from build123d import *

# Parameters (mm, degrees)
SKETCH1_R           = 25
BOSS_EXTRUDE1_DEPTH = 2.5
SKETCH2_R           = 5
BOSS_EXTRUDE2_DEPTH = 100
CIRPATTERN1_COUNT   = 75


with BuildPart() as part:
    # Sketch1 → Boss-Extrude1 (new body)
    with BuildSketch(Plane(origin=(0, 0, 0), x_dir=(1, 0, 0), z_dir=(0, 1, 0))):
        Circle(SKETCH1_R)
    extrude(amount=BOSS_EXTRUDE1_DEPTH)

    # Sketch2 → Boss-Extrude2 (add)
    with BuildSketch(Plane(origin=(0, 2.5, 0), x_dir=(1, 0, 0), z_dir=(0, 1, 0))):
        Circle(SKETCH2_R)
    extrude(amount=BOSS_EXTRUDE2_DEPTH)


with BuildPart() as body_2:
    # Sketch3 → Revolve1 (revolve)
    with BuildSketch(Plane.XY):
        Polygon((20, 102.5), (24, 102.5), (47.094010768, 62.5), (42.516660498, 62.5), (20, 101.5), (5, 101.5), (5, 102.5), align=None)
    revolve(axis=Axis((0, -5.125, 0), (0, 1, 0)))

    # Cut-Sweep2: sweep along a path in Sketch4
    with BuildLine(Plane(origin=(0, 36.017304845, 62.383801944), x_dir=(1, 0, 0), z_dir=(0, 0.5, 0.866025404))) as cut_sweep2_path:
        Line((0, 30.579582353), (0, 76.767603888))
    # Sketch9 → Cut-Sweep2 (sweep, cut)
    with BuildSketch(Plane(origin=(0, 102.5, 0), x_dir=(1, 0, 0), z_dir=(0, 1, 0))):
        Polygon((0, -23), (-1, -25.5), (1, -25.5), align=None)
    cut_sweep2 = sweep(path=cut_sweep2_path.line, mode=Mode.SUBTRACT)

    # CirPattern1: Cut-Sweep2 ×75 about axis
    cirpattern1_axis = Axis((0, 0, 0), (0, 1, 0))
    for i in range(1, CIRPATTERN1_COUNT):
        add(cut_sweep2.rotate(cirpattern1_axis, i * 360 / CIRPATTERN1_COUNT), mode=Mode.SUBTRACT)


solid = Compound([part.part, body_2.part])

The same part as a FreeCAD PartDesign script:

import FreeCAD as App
import Part
import Sketcher
Q = App.Units.Quantity


def add_polygon(sketch, points):
    """Adds a closed chain of lines whose ends are joined by coincident constraints."""
    first, n = sketch.GeometryCount, len(points)
    for a, b in zip(points, points[1:] + points[:1]):
        sketch.addGeometry(Part.LineSegment(App.Vector(*a, 0), App.Vector(*b, 0)), False)
    for i in range(n):
        sketch.addConstraint(Sketcher.Constraint("Coincident", first + i, 2, first + (i + 1) % n, 1))

doc = App.newDocument("Part")
body = doc.addObject("PartDesign::Body", "Body")

# Sketch on XZ plane
sketch1 = body.newObject("Sketcher::SketchObject", "Sketch")
sketch1.AttachmentSupport = (doc.getObject("XZ_Plane"), [""])
sketch1.MapMode = "FlatFace"
sketch1.addGeometry(Part.Circle(App.Vector(0, 0, 0), App.Vector(0, 0, 1), 25), False)
sketch1.addConstraint(Sketcher.Constraint("Coincident", 0, 3, -1, 1))
sketch1.addConstraint(Sketcher.Constraint("Diameter", 0, Q("50 mm")))
pad1 = body.newObject("PartDesign::Pad", "Pad")
pad1.Profile = sketch1
pad1.Length = 2.5
pad1.Reversed = True

# Sketch on XZ plane
sketch2 = body.newObject("Sketcher::SketchObject", "Sketch001")
sketch2.AttachmentSupport = (doc.getObject("XZ_Plane"), [""])
sketch2.MapMode = "FlatFace"
sketch2.AttachmentOffset = App.Placement(App.Vector(0, 0, -2.5), App.Rotation())
sketch2.addGeometry(Part.Circle(App.Vector(0, 0, 0), App.Vector(0, 0, 1), 5), False)
sketch2.addConstraint(Sketcher.Constraint("Coincident", 0, 3, -1, 1))
sketch2.addConstraint(Sketcher.Constraint("Diameter", 0, Q("10 mm")))
pad2 = body.newObject("PartDesign::Pad", "Pad001")
pad2.Profile = sketch2
pad2.Length = 100
pad2.Reversed = True
body2 = doc.addObject("PartDesign::Body", "Body001")

# Sketch on XY plane
sketch3 = body2.newObject("Sketcher::SketchObject", "Sketch002")
sketch3.AttachmentSupport = (doc.getObject("XY_Plane001"), [""])
sketch3.MapMode = "FlatFace"
add_polygon(sketch3, [(24, 102.5), (5, 102.5), (5, 101.5), (20, 101.5), (42.5, 62.5), (47.1, 62.5)])  # lines 0-5
sketch3.addConstraint(Sketcher.Constraint("Horizontal", 0))
sketch3.addConstraint(Sketcher.Constraint("Vertical", 1))
sketch3.addConstraint(Sketcher.Constraint("Horizontal", 2))
sketch3.addConstraint(Sketcher.Constraint("Horizontal", 4))
sketch3.addConstraint(Sketcher.Constraint("Parallel", 3, 5))
sketch3.addConstraint(Sketcher.Constraint("DistanceX", 0, 2, 0, 1, Q("19 mm")))
sketch3.addConstraint(Sketcher.Constraint("DistanceX", 2, 1, 2, 2, Q("15 mm")))
sketch3.addConstraint(Sketcher.Constraint("DistanceY", 1, 2, 1, 1, Q("1 mm")))
sketch3.addConstraint(Sketcher.Constraint("Angle", 3, Q("-60 deg")))
sketch3.addConstraint(Sketcher.Constraint("DistanceX", -1, 1, 0, 2, Q("5 mm")))
sketch3.addConstraint(Sketcher.Constraint("DistanceY", 3, 2, 2, 2, Q("39 mm")))
sketch3.addConstraint(Sketcher.Constraint("DistanceY", -1, 1, 0, 2, Q("102.5 mm")))
revolution = body2.newObject("PartDesign::Revolution", "Revolution")
revolution.Profile = sketch3
revolution.ReferenceAxis = (sketch3, ["V_Axis"])
revolution.Angle = 360

# Sketch on XZ plane
sketch4 = body2.newObject("Sketcher::SketchObject", "Sketch003")
sketch4.AttachmentSupport = (doc.getObject("XZ_Plane001"), [""])
sketch4.MapMode = "FlatFace"
sketch4.AttachmentOffset = App.Placement(App.Vector(0, 0, -102.5), App.Rotation())
add_polygon(sketch4, [(0, 23), (-1, 25.5), (1, 25.5)])  # lines 0-2
sketch4.addConstraint(Sketcher.Constraint("Horizontal", 1))
sketch4.addConstraint(Sketcher.Constraint("PointOnObject", 2, 2, -2))
sketch4.addConstraint(Sketcher.Constraint("Equal", 0, 2))
sketch4.addConstraint(Sketcher.Constraint("DistanceX", 1, 1, 1, 2, Q("2 mm")))
sketch4.addConstraint(Sketcher.Constraint("DistanceY", -1, 1, 2, 2, Q("23 mm")))
sketch4.addConstraint(Sketcher.Constraint("DistanceY", -1, 1, 0, 2, Q("25.5 mm")))

# Sketch on an angled plane
sketch5 = body2.newObject("Sketcher::SketchObject", "Sketch004")
sketch5.Placement = App.Placement(App.Vector(0, 36.017305, 62.383802), App.Rotation(App.Vector(0, 0.866025404, -0.5), App.Vector(1, 0, 0), App.Vector(0, -0.5, -0.866025404), "ZXY"))
sketch5.addGeometry(Part.LineSegment(App.Vector(31, 0, 0), App.Vector(77, 0, 0)), False)
sketch5.addConstraint(Sketcher.Constraint("Horizontal", 0))
sketch5.addConstraint(Sketcher.Constraint("PointOnObject", 0, 1, -1))
sketch5.addConstraint(Sketcher.Constraint("DistanceX", 0, 1, 0, 2, Q("46.188022 mm")))
sketch5.addConstraint(Sketcher.Constraint("DistanceX", -1, 1, 0, 1, Q("30.579582 mm")))
doc.recompute()

subtractivepipe = body2.newObject("PartDesign::SubtractivePipe", "SubtractivePipe")
subtractivepipe.Profile = sketch4
subtractivepipe.Spine = (sketch5, ["Edge1"])
doc.recompute()

polarpattern = body2.newObject("PartDesign::PolarPattern", "PolarPattern")
polarpattern.Originals = [subtractivepipe]
polarpattern.Axis = (doc.getObject("Y_Axis001"), [""])
polarpattern.Angle = 360
polarpattern.Occurrences = 75
body2.Tip = polarpattern

doc.recompute()
